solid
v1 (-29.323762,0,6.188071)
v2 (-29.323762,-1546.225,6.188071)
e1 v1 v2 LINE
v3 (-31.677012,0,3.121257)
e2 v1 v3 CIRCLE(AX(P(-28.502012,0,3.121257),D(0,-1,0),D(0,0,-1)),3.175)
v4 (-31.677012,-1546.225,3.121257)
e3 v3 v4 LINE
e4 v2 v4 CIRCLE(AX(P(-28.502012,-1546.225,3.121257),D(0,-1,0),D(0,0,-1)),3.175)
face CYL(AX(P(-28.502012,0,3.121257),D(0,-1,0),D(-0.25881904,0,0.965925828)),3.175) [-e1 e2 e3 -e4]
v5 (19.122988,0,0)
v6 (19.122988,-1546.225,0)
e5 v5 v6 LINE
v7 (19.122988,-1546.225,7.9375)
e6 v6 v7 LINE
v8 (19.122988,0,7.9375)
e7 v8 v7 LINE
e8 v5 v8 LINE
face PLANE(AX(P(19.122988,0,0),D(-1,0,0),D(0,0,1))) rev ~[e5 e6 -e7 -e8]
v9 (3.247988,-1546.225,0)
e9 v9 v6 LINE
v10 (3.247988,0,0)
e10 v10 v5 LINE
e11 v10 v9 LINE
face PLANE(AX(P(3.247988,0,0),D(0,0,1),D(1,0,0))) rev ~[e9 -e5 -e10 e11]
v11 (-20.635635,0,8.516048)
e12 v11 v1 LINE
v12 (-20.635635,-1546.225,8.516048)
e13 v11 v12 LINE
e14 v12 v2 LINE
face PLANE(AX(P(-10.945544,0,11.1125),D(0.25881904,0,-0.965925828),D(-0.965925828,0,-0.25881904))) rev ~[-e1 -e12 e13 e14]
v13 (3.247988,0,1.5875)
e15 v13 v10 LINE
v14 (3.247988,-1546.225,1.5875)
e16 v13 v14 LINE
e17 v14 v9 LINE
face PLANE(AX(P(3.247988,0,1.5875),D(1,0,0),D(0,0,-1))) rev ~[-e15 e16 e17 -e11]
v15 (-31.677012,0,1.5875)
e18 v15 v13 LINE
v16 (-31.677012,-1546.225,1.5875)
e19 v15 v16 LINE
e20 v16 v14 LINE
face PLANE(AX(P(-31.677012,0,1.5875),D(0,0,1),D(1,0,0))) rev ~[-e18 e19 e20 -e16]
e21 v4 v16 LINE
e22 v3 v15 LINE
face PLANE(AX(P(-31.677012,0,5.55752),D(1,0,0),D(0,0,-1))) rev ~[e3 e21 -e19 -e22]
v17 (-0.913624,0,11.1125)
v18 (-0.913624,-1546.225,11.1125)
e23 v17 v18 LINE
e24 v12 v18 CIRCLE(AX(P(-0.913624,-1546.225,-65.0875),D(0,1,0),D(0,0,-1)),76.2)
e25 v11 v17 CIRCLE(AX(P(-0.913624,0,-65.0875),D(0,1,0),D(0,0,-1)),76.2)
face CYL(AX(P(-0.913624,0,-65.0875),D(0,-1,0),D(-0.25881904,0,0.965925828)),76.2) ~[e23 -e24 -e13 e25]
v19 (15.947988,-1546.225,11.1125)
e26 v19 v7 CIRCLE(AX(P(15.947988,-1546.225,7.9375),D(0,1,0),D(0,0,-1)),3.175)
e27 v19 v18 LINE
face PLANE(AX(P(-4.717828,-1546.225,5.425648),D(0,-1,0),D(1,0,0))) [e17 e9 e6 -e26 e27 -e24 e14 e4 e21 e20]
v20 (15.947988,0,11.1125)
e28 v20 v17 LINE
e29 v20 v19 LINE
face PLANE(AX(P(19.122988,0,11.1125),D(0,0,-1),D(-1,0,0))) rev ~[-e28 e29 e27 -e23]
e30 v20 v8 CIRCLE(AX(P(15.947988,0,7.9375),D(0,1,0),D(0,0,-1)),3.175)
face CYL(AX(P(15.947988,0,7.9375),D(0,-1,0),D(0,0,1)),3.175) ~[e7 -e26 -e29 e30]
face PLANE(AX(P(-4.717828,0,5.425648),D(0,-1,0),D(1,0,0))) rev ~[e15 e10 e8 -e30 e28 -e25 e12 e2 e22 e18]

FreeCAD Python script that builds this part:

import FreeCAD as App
import Part
import Sketcher
Q = App.Units.Quantity


def edges_at(feature, points):
    """Names of the edges that pass closest to the given points."""
    edges = feature.Shape.Edges
    near = lambda p: min(range(len(edges)), key=lambda i: edges[i].distToShape(Part.Vertex(*p))[0])
    return sorted({f"Edge{near(p) + 1}" for p in points})


def add_polygon(sketch, points):
    """Adds a closed chain of lines whose ends are joined by coincident constraints."""
    first, n = sketch.GeometryCount, len(points)
    for a, b in zip(points, points[1:] + points[:1]):
        sketch.addGeometry(Part.LineSegment(App.Vector(*a, 0), App.Vector(*b, 0)), False)
    for i in range(n):
        sketch.addConstraint(Sketcher.Constraint("Coincident", first + i, 2, first + (i + 1) % n, 1))

doc = App.newDocument("Part")
params = doc.addObject("Spreadsheet::Sheet", "Params")
for row, (alias, value) in enumerate([
    ("sketch1_width", "1.375 in"),
    ("sketch1_height", "0.0625 in"),
    ("sketch1_height2", "0.4375 in"),
    ("pad1_length", "60.875 in"),
    ("fillet_radius", "3 in"),
    ("fillet2_radius", "0.125 in"),
    ("fillet3_radius", "0.125 in"),
], start=1):
    params.set(f"A{row}", alias)
    params.set(f"B{row}", "=" + value)
    params.setAlias(f"B{row}", alias)

body = doc.addObject("PartDesign::Body", "Body")

sketch1 = body.newObject("Sketcher::SketchObject", "Sketch")
sketch1.AttachmentSupport = (doc.getObject("XZ_Plane"), [""])
sketch1.MapMode = "FlatFace"
add_polygon(sketch1, [(-10.9, 11.1), (-31.7, 5.6), (-31.7, 1.6), (3.2, 1.6), (3.2, 0), (19.1, 0), (19.1, 11.1)])
sketch1.addConstraint([
    Sketcher.Constraint("Vertical", 1),
    Sketcher.Constraint("Horizontal", 2),
    Sketcher.Constraint("Vertical", 3),
    Sketcher.Constraint("Horizontal", 4),
    Sketcher.Constraint("Vertical", 5),
    Sketcher.Constraint("Horizontal", 6),
    Sketcher.Constraint("PointOnObject", 3, 2, -1),
    Sketcher.Constraint("Angle", 0, Q("-165 deg")),
    Sketcher.Constraint("DistanceX", 1, 2, 4, 2, Q("2 in")),
    Sketcher.Constraint("DistanceX", 2, 1, 2, 2, Q("1.375 in")),
    Sketcher.Constraint("DistanceY", 3, 2, 3, 1, Q("0.0625 in")),
    Sketcher.Constraint("DistanceY", 5, 1, 5, 2, Q("0.4375 in")),
    Sketcher.Constraint("DistanceY", 1, 2, 1, 1, Q("0.1563 in")),
    Sketcher.Constraint("DistanceX", 0, 2, -1, 1, 31.677012),
])
sketch1.setExpression("Constraints[16]", "Params.sketch1_width")
sketch1.setExpression("Constraints[17]", "Params.sketch1_height")
sketch1.setExpression("Constraints[18]", "Params.sketch1_height2")
pad1 = body.newObject("PartDesign::Pad", "Pad")
pad1.Profile = sketch1
pad1.setExpression("Length", "Params.pad1_length")
doc.recompute()

fillet = body.newObject("PartDesign::Fillet", "Fillet")
fillet.Base = (pad1, edges_at(pad1, [(-10.946, -773.112, 11.113)]))
fillet.setExpression("Radius", "Params.fillet_radius")
doc.recompute()

fillet2 = body.newObject("PartDesign::Fillet", "Fillet001")
fillet2.Base = (fillet, edges_at(fillet, [(-31.677, -773.112, 5.558)]))
fillet2.setExpression("Radius", "Params.fillet2_radius")
doc.recompute()

fillet3 = body.newObject("PartDesign::Fillet", "Fillet002")
fillet3.Base = (fillet2, edges_at(fillet2, [(19.123, -773.112, 11.113)]))
fillet3.setExpression("Radius", "Params.fillet3_radius")

doc.recompute()
